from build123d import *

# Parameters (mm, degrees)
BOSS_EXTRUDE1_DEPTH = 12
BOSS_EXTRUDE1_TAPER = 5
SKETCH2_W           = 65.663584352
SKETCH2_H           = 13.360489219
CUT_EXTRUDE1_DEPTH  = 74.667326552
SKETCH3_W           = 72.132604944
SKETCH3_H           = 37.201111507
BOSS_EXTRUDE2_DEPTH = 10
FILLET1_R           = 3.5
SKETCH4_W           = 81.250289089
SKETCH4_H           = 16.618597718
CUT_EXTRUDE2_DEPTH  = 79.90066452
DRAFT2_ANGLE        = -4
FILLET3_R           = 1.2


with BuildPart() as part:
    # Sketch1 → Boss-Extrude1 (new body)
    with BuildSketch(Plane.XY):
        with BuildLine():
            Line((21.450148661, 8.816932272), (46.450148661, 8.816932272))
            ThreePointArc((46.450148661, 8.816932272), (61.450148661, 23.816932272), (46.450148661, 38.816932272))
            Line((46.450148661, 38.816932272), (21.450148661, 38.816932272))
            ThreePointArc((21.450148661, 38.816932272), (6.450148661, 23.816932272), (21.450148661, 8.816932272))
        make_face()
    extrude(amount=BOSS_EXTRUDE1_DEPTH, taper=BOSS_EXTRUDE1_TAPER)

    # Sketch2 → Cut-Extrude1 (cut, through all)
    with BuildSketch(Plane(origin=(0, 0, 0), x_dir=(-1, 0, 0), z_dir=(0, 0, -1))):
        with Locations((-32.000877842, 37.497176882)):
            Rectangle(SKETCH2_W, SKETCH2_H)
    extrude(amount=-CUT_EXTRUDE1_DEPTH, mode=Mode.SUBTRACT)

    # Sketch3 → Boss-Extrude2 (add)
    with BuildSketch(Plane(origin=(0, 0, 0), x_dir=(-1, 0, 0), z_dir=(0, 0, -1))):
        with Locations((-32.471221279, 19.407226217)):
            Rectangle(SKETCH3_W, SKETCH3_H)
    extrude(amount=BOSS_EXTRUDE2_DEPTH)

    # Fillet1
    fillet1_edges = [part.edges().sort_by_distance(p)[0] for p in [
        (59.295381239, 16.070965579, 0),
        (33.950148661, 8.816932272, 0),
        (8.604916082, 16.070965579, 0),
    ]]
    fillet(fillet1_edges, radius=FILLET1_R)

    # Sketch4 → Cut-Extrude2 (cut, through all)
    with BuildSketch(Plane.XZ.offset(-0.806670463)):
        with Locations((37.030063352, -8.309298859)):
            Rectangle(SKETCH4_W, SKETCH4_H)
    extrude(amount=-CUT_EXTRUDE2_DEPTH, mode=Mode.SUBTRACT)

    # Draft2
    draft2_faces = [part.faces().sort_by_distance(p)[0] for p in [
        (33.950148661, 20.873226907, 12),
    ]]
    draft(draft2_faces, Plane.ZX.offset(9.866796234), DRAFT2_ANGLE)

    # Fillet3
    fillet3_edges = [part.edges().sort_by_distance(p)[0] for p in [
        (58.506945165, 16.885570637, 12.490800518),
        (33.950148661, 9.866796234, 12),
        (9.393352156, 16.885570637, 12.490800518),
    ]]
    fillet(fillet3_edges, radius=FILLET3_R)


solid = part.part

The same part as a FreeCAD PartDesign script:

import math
import FreeCAD as App
import Part
import Sketcher
Q = App.Units.Quantity


def edges_at(feature, points):
    """Names of the edges that pass closest to the given points."""
    edges = feature.Shape.Edges
    near = lambda p: min(range(len(edges)), key=lambda i: edges[i].distToShape(Part.Vertex(*p))[0])
    return sorted({f"Edge{near(p) + 1}" for p in points})


def faces_at(feature, points):
    """Names of the faces that lie closest to the given points."""
    faces = feature.Shape.Faces
    near = lambda p: min(range(len(faces)), key=lambda i: faces[i].distToShape(Part.Vertex(*p))[0])
    return sorted({f"Face{near(p) + 1}" for p in points})

doc = App.newDocument("Part")
body = doc.addObject("PartDesign::Body", "Body")

sketch1 = doc.addObject("Sketcher::SketchObject", "Sketch")
body.addObject(sketch1)
sketch1.AttachmentSupport = (doc.XY_Plane, [""])
sketch1.MapMode = "FlatFace"
sketch1.addGeometry([
    Part.LineSegment(App.Vector(21.450149, 8.816932, 0), App.Vector(46.450149, 8.816932, 0)),
    Part.ArcOfCircle(Part.Circle(App.Vector(46.450149, 23.816932, 0), App.Vector(0, 0, 1), 15), math.radians(-90), math.radians(90)),
    Part.LineSegment(App.Vector(46.450149, 38.816932, 0), App.Vector(21.450149, 38.816932, 0)),
    Part.ArcOfCircle(Part.Circle(App.Vector(21.450149, 23.816932, 0), App.Vector(0, 0, 1), 15), math.radians(90), math.radians(270)),
], False)
sketch1.addConstraint([
    Sketcher.Constraint("Tangent", 0, 2, 1, 1),
    Sketcher.Constraint("Tangent", 1, 2, 2, 1),
    Sketcher.Constraint("Tangent", 2, 2, 3, 1),
    Sketcher.Constraint("Tangent", 3, 2, 0, 1),
    Sketcher.Constraint("Horizontal", 0),
    Sketcher.Constraint("Horizontal", 2),
    Sketcher.Constraint("Radius", 1, Q("15 mm")),
    Sketcher.Constraint("DistanceX", 0, 1, 0, 2, Q("25 mm")),
    Sketcher.Constraint("DistanceX", -1, 1, 1, 3, Q("46.450149 mm")),
    Sketcher.Constraint("DistanceY", -1, 1, 1, 3, Q("23.816932 mm")),
])
pad1 = doc.addObject("PartDesign::Pad", "Pad")
body.addObject(pad1)
pad1.Profile = sketch1
pad1.Length = 12
pad1.TaperAngle = -5

sketch2 = doc.addObject("Sketcher::SketchObject", "Sketch001")
body.addObject(sketch2)
sketch2.AttachmentSupport = (doc.XY_Plane, [""])
sketch2.MapMode = "FlatFace"
sketch2.addGeometry([
    Part.LineSegment(App.Vector(64.83267, 44.177421, 0), App.Vector(64.83267, 30.816932, 0)),
    Part.LineSegment(App.Vector(64.83267, 30.816932, 0), App.Vector(-0.830914, 30.816932, 0)),
    Part.LineSegment(App.Vector(-0.830914, 30.816932, 0), App.Vector(-0.830914, 44.177421, 0)),
    Part.LineSegment(App.Vector(-0.830914, 44.177421, 0), App.Vector(64.83267, 44.177421, 0)),
], False)
sketch2.addConstraint([
    Sketcher.Constraint("Coincident", 0, 2, 1, 1),
    Sketcher.Constraint("Coincident", 1, 2, 2, 1),
    Sketcher.Constraint("Coincident", 2, 2, 3, 1),
    Sketcher.Constraint("Coincident", 3, 2, 0, 1),
    Sketcher.Constraint("Vertical", 0),
    Sketcher.Constraint("Horizontal", 1),
    Sketcher.Constraint("Vertical", 2),
    Sketcher.Constraint("Horizontal", 3),
    Sketcher.Constraint("DistanceY", 0, 2, 0, 1, Q("13.360489 mm")),
    Sketcher.Constraint("DistanceX", 1, 2, 1, 1, Q("65.663584 mm")),
    Sketcher.Constraint("DistanceX", -1, 1, 0, 2, Q("64.83267 mm")),
    Sketcher.Constraint("DistanceY", -1, 1, 2, 2, Q("44.177421 mm")),
])
pocket1 = doc.addObject("PartDesign::Pocket", "Pocket")
body.addObject(pocket1)
pocket1.Profile = sketch2
pocket1.Type = "ThroughAll"
pocket1.Reversed = True

sketch3 = doc.addObject("Sketcher::SketchObject", "Sketch002")
body.addObject(sketch3)
sketch3.AttachmentSupport = (doc.XY_Plane, [""])
sketch3.MapMode = "FlatFace"
sketch3.addGeometry([
    Part.LineSegment(App.Vector(68.537524, 38.007782, 0), App.Vector(68.537524, 0.80667, 0)),
    Part.LineSegment(App.Vector(68.537524, 0.80667, 0), App.Vector(-3.595081, 0.80667, 0)),
    Part.LineSegment(App.Vector(-3.595081, 0.80667, 0), App.Vector(-3.595081, 38.007782, 0)),
    Part.LineSegment(App.Vector(-3.595081, 38.007782, 0), App.Vector(68.537524, 38.007782, 0)),
], False)
sketch3.addConstraint([
    Sketcher.Constraint("Coincident", 0, 2, 1, 1),
    Sketcher.Constraint("Coincident", 1, 2, 2, 1),
    Sketcher.Constraint("Coincident", 2, 2, 3, 1),
    Sketcher.Constraint("Coincident", 3, 2, 0, 1),
    Sketcher.Constraint("Vertical", 0),
    Sketcher.Constraint("Horizontal", 1),
    Sketcher.Constraint("Vertical", 2),
    Sketcher.Constraint("Horizontal", 3),
    Sketcher.Constraint("DistanceY", 0, 2, 0, 1, Q("37.201112 mm")),
    Sketcher.Constraint("DistanceX", 1, 2, 1, 1, Q("72.132605 mm")),
    Sketcher.Constraint("DistanceY", -1, 1, 0, 2, Q("0.80667 mm")),
    Sketcher.Constraint("DistanceX", 1, 2, -1, 1, Q("3.595081 mm")),
])
pad2 = doc.addObject("PartDesign::Pad", "Pad001")
body.addObject(pad2)
pad2.Profile = sketch3
pad2.Length = 10
pad2.Reversed = True
doc.recompute()

fillet = doc.addObject("PartDesign::Fillet", "Fillet")
body.addObject(fillet)
fillet.Base = (pad2, edges_at(pad2, [(59.295, 16.071, 0), (33.95, 8.817, 0), (8.605, 16.071, 0)]))
fillet.Radius = 3.5

sketch4 = doc.addObject("Sketcher::SketchObject", "Sketch003")
body.addObject(sketch4)
sketch4.AttachmentSupport = (doc.XZ_Plane, [""])
sketch4.MapMode = "FlatFace"
sketch4.AttachmentOffset = App.Placement(App.Vector(0, 0, -0.80667), App.Rotation())
sketch4.addGeometry([
    Part.LineSegment(App.Vector(-3.595081, 0, 0), App.Vector(-3.595081, -16.618598, 0)),
    Part.LineSegment(App.Vector(-3.595081, -16.618598, 0), App.Vector(77.655208, -16.618598, 0)),
    Part.LineSegment(App.Vector(77.655208, -16.618598, 0), App.Vector(77.655208, 0, 0)),
    Part.LineSegment(App.Vector(77.655208, 0, 0), App.Vector(-3.595081, 0, 0)),
], False)
sketch4.addConstraint([
    Sketcher.Constraint("Coincident", 0, 2, 1, 1),
    Sketcher.Constraint("Coincident", 1, 2, 2, 1),
    Sketcher.Constraint("Coincident", 2, 2, 3, 1),
    Sketcher.Constraint("Coincident", 3, 2, 0, 1),
    Sketcher.Constraint("Vertical", 0),
    Sketcher.Constraint("Horizontal", 1),
    Sketcher.Constraint("Vertical", 2),
    Sketcher.Constraint("Horizontal", 3),
    Sketcher.Constraint("PointOnObject", 2, 2, -1),
    Sketcher.Constraint("DistanceX", 1, 1, 1, 2, Q("81.250289 mm")),
    Sketcher.Constraint("DistanceY", 0, 2, 0, 1, Q("16.618598 mm")),
    Sketcher.Constraint("DistanceX", 0, 2, -1, 1, Q("3.595081 mm")),
])
pocket2 = doc.addObject("PartDesign::Pocket", "Pocket001")
body.addObject(pocket2)
pocket2.Profile = sketch4
pocket2.Type = "ThroughAll"
doc.recompute()

datumplane = doc.addObject("PartDesign::Plane", "DatumPlane")
body.addObject(datumplane)
datumplane.AttachmentSupport = (doc.XZ_Plane, [""])
datumplane.MapMode = "FlatFace"
datumplane.AttachmentOffset = App.Placement(App.Vector(0, 0, -9.866796), App.Rotation())
draft = doc.addObject("PartDesign::Draft", "Draft")
body.addObject(draft)
draft.Base = (pocket2, faces_at(pocket2, [(33.95, 20.342, 12)]))
draft.NeutralPlane = (datumplane, [""])
draft.Angle = 4
draft.Reversed = False
doc.recompute()

fillet2 = doc.addObject("PartDesign::Fillet", "Fillet001")
body.addObject(fillet2)
fillet2.Base = (draft, edges_at(draft, [(58.507, 16.886, 12.491), (33.95, 9.867, 12), (9.393, 16.886, 12.491)]))
fillet2.Radius = 1.2

doc.recompute()
